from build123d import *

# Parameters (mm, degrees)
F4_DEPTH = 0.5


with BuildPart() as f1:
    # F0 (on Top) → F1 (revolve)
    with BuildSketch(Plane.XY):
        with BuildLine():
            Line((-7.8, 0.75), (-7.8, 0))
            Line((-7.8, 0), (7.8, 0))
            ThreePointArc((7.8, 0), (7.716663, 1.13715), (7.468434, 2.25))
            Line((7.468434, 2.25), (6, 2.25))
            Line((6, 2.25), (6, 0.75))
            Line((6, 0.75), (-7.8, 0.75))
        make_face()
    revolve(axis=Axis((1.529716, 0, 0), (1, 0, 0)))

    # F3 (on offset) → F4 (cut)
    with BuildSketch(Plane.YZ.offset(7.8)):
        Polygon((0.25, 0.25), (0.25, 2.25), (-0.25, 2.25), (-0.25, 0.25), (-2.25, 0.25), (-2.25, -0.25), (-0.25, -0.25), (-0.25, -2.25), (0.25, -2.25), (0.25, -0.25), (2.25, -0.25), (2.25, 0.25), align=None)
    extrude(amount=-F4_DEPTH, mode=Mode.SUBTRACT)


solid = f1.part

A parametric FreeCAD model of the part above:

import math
import FreeCAD as App
import Part
import Sketcher

V = App.Vector
Q = App.Units.Quantity


def add_polygon(sketch, points):
    """Adds a closed chain of lines whose ends are joined by coincident constraints."""
    first, n = sketch.GeometryCount, len(points)
    for a, b in zip(points, points[1:] + points[:1]):
        sketch.addGeometry(Part.LineSegment(App.Vector(*a, 0), App.Vector(*b, 0)), False)
    for i in range(n):
        sketch.addConstraint(Sketcher.Constraint("Coincident", first + i, 2, first + (i + 1) % n, 1))

doc = App.newDocument("Part")
params = doc.addObject("Spreadsheet::Sheet", "Params")
for row, (alias, value) in enumerate([
    ("sketch1_width", "15.6 mm"),
    ("sketch1_width2", "13.8 mm"),
    ("sketch1_height", "1.5 mm"),
    ("sketch1_height2", "0.75 mm"),
    ("revolution_angle", "360 deg"),
    ("sketch2_width", "2 mm"),
    ("sketch2_width2", "0.5 mm"),
    ("pocket1_length", "0.5 mm"),
], start=1):
    params.set(f"A{row}", alias)
    params.set(f"B{row}", "=" + value)
    params.setAlias(f"B{row}", alias)

body = doc.addObject("PartDesign::Body", "Body")

sketch1 = body.newObject("Sketcher::SketchObject", "Sketch")
sketch1.AttachmentSupport = (doc.getObject("XY_Plane"), [""])
sketch1.MapMode = "FlatFace"
sketch1.addGeometry([
    Part.LineSegment(V(-7.8, 0.75, 0), V(-7.8, 0, 0)),
    Part.LineSegment(V(-7.8, 0, 0), V(7.8, 0, 0)),
    Part.ArcOfCircle(Part.Circle(V(-0.000031, -0.000003, 0), V(0, 0, 1), 7.800031), math.radians(0.000023), math.radians(16.765828)),
    Part.LineSegment(V(7.468434, 2.25, 0), V(6, 2.25, 0)),
    Part.LineSegment(V(6, 2.25, 0), V(6, 0.75, 0)),
    Part.LineSegment(V(6, 0.75, 0), V(-7.8, 0.75, 0)),
], False)
sketch1.addConstraint([
    Sketcher.Constraint("Coincident", 0, 2, 1, 1),
    Sketcher.Constraint("Coincident", 1, 2, 2, 1),
    Sketcher.Constraint("Coincident", 2, 2, 3, 1),
    Sketcher.Constraint("Coincident", 3, 2, 4, 1),
    Sketcher.Constraint("Coincident", 4, 2, 5, 1),
    Sketcher.Constraint("Coincident", 5, 2, 0, 1),
    Sketcher.Constraint("Vertical", 0),
    Sketcher.Constraint("Horizontal", 1),
    Sketcher.Constraint("Horizontal", 3),
    Sketcher.Constraint("Vertical", 4),
    Sketcher.Constraint("Horizontal", 5),
    Sketcher.Constraint("Symmetric", 0, 2, 1, 2, -1, 1),
    Sketcher.Constraint("DistanceX", 1, 1, 1, 2, Q("15.6 mm")),
    Sketcher.Constraint("DistanceX", 5, 2, 5, 1, Q("13.8 mm")),
    Sketcher.Constraint("DistanceY", 4, 2, 4, 1, Q("1.5 mm")),
    Sketcher.Constraint("DistanceY", 0, 2, 0, 1, Q("0.75 mm")),
    Sketcher.Constraint("Radius", 2, Q("7.800031 mm")),
    Sketcher.Constraint("DistanceX", 3, 2, 3, 1, Q("1.468434 mm")),
])
sketch1.setExpression("Constraints[12]", "Params.sketch1_width")
sketch1.setExpression("Constraints[13]", "Params.sketch1_width2")
sketch1.setExpression("Constraints[14]", "Params.sketch1_height")
sketch1.setExpression("Constraints[15]", "Params.sketch1_height2")
revolution = body.newObject("PartDesign::Revolution", "Revolution")
revolution.Profile = sketch1
revolution.ReferenceAxis = (sketch1, ["H_Axis"])
revolution.setExpression("Angle", "Params.revolution_angle")

sketch2 = body.newObject("Sketcher::SketchObject", "Sketch001")
sketch2.AttachmentSupport = (doc.getObject("YZ_Plane"), [""])
sketch2.MapMode = "FlatFace"
sketch2.AttachmentOffset = App.Placement(V(0, 0, 7.8), App.Rotation())
add_polygon(sketch2, [(0.25, 0.25), (0.25, 2.25), (-0.25, 2.25), (-0.25, 0.25), (-2.25, 0.25), (-2.25, -0.25), (-0.25, -0.25), (-0.25, -2.25), (0.25, -2.25), (0.25, -0.25), (2.25, -0.25), (2.25, 0.25)])
sketch2.addConstraint([
    Sketcher.Constraint("Vertical", 0),
    Sketcher.Constraint("Horizontal", 1),
    Sketcher.Constraint("Vertical", 2),
    Sketcher.Constraint("Horizontal", 3),
    Sketcher.Constraint("Vertical", 4),
    Sketcher.Constraint("Horizontal", 5),
    Sketcher.Constraint("Vertical", 6),
    Sketcher.Constraint("Horizontal", 7),
    Sketcher.Constraint("Vertical", 8),
    Sketcher.Constraint("Horizontal", 9),
    Sketcher.Constraint("Vertical", 10),
    Sketcher.Constraint("Horizontal", 11),
    Sketcher.Constraint("Symmetric", 0, 2, 6, 2, -1, 1),
    Sketcher.Constraint("Symmetric", 2, 2, 8, 2, -1, 1),
    Sketcher.Constraint("Symmetric", 4, 2, 10, 2, -1, 1),
    Sketcher.Constraint("Symmetric", 5, 2, 8, 2, -2),
    Sketcher.Constraint("Equal", 11, 0),
    Sketcher.Constraint("Equal", 7, 4),
    Sketcher.Constraint("DistanceX", 3, 2, 3, 1, Q("2 mm")),
    Sketcher.Constraint("DistanceX", 1, 2, 1, 1, Q("0.5 mm")),
])
sketch2.setExpression("Constraints[30]", "Params.sketch2_width")
sketch2.setExpression("Constraints[31]", "Params.sketch2_width2")
pocket1 = body.newObject("PartDesign::Pocket", "Pocket")
pocket1.Profile = sketch2
pocket1.setExpression("Length", "Params.pocket1_length")

doc.recompute()
